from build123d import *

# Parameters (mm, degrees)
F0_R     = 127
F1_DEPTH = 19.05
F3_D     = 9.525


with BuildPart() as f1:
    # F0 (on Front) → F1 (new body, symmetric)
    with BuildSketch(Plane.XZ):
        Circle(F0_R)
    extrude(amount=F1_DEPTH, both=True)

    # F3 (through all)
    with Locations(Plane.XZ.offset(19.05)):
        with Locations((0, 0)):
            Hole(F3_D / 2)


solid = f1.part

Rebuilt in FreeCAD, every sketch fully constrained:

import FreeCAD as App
import Part
import Sketcher

V = App.Vector
Q = App.Units.Quantity

doc = App.newDocument("Part")
body = doc.addObject("PartDesign::Body", "Body")

sketch1 = body.newObject("Sketcher::SketchObject", "Sketch")
sketch1.AttachmentSupport = (doc.getObject("XZ_Plane"), [""])
sketch1.MapMode = "FlatFace"
sketch1.addGeometry(Part.Circle(V(0, 0, 0), V(0, 0, 1), 127), False)
sketch1.addConstraint([
    Sketcher.Constraint("Coincident", 0, 3, -1, 1),
    Sketcher.Constraint("Diameter", 0, Q("10 in")),
])
pad1 = body.newObject("PartDesign::Pad", "Pad")
pad1.Profile = sketch1
pad1.Length = Q("1.5 in")
pad1.Midplane = True

sketch2 = body.newObject("Sketcher::SketchObject", "Sketch001")
sketch2.AttachmentSupport = (doc.getObject("XZ_Plane"), [""])
sketch2.MapMode = "FlatFace"
sketch2.AttachmentOffset = App.Placement(V(0, 0, 0.75 * 25.4), App.Rotation())
sketch2.addGeometry(Part.Circle(V(0, 0, 0), V(0, 0, 1), 4.8), False)
sketch2.addConstraint([
    Sketcher.Constraint("Coincident", 0, 3, -1, 1),
    Sketcher.Constraint("Diameter", 0, Q("0.375 in")),
])
doc.recompute()
hole = body.newObject("PartDesign::Hole", "Hole")
hole.Profile = sketch2
hole.ThreadType = "None"
hole.Diameter = Q("0.375 in")
hole.DepthType = "ThroughAll"

doc.recompute()
